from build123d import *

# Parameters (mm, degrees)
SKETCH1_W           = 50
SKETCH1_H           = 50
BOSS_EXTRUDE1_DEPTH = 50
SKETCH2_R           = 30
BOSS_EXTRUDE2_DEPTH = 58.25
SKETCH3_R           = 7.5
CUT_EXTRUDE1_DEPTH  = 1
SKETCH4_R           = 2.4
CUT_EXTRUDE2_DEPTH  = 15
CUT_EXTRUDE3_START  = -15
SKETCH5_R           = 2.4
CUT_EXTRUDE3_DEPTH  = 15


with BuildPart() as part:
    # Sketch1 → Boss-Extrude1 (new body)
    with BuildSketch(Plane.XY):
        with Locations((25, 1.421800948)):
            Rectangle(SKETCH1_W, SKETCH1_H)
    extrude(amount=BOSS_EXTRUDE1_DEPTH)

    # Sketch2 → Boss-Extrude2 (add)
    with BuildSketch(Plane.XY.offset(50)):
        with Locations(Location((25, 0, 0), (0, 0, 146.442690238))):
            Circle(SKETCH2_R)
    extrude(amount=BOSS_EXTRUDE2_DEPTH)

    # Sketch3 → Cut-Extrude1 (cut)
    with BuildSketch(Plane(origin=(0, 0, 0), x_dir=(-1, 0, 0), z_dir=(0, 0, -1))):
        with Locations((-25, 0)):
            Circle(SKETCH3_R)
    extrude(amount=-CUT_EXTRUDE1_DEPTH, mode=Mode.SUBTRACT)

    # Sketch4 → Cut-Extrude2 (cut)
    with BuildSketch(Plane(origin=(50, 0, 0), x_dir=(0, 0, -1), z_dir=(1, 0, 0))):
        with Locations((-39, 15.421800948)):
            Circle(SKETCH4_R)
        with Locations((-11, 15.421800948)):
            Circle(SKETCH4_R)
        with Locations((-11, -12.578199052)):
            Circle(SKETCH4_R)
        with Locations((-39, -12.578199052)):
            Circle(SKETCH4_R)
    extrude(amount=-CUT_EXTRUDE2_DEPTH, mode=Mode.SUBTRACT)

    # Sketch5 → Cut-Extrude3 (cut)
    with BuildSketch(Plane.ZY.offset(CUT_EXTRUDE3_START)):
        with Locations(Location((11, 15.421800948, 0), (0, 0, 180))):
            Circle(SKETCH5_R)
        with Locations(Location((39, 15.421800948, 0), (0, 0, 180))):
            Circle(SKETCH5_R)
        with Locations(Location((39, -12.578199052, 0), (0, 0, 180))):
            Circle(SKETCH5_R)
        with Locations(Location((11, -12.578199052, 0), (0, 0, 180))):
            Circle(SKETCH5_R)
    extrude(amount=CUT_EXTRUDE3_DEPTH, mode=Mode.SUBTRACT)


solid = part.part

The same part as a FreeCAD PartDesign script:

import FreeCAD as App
import Part
import Sketcher
Q = App.Units.Quantity

doc = App.newDocument("Part")
params = doc.addObject("Spreadsheet::Sheet", "Params")
for row, (alias, value) in enumerate([
    ("sketch1_width", "50 mm"),
    ("pad1_length", "50 mm"),
    ("sketch2_diameter", "60 mm"),
    ("pad2_length", "58.25 mm"),
    ("sketch3_diameter", "15 mm"),
    ("pocket1_length", "1 mm"),
    ("sketch4_diameter", "4.8 mm"),
    ("pocket2_length", "15 mm"),
    ("sketch5_diameter", "4.8 mm"),
    ("pocket3_length", "15 mm"),
], start=1):
    params.set(f"A{row}", alias)
    params.set(f"B{row}", "=" + value)
    params.setAlias(f"B{row}", alias)

body = doc.addObject("PartDesign::Body", "Body")

sketch1 = doc.addObject("Sketcher::SketchObject", "Sketch")
body.addObject(sketch1)
sketch1.AttachmentSupport = (doc.XY_Plane, [""])
sketch1.MapMode = "FlatFace"
sketch1.addGeometry([
    Part.LineSegment(App.Vector(0, 26, 0), App.Vector(0, -24, 0)),
    Part.LineSegment(App.Vector(0, -24, 0), App.Vector(50, -24, 0)),
    Part.LineSegment(App.Vector(50, -24, 0), App.Vector(50, 26, 0)),
    Part.LineSegment(App.Vector(50, 26, 0), App.Vector(0, 26, 0)),
], False)
sketch1.addConstraint([
    Sketcher.Constraint("Coincident", 0, 2, 1, 1),
    Sketcher.Constraint("Coincident", 1, 2, 2, 1),
    Sketcher.Constraint("Coincident", 2, 2, 3, 1),
    Sketcher.Constraint("Coincident", 3, 2, 0, 1),
    Sketcher.Constraint("Vertical", 0),
    Sketcher.Constraint("Horizontal", 1),
    Sketcher.Constraint("Vertical", 2),
    Sketcher.Constraint("Horizontal", 3),
    Sketcher.Constraint("PointOnObject", 0, 2, -2),
    Sketcher.Constraint("Equal", 3, 0),
    Sketcher.Constraint("DistanceX", 1, 1, 1, 2, Q("50 mm")),
    Sketcher.Constraint("DistanceY", 0, 2, -1, 1, Q("23.578199 mm")),
])
sketch1.setExpression("Constraints[10]", "Params.sketch1_width")
pad1 = doc.addObject("PartDesign::Pad", "Pad")
body.addObject(pad1)
pad1.Profile = sketch1
pad1.setExpression("Length", "Params.pad1_length")

sketch2 = doc.addObject("Sketcher::SketchObject", "Sketch001")
body.addObject(sketch2)
sketch2.AttachmentSupport = (doc.XY_Plane, [""])
sketch2.MapMode = "FlatFace"
sketch2.AttachmentOffset = App.Placement(App.Vector(0, 0, 50), App.Rotation())
sketch2.addGeometry(Part.Circle(App.Vector(25, 0, 0), App.Vector(0, 0, 1), 30), False)
sketch2.addConstraint([
    Sketcher.Constraint("PointOnObject", 0, 3, -1),
    Sketcher.Constraint("Diameter", 0, Q("60 mm")),
    Sketcher.Constraint("DistanceX", -1, 1, 0, 3, Q("25 mm")),
])
sketch2.setExpression("Constraints[1]", "Params.sketch2_diameter")
pad2 = doc.addObject("PartDesign::Pad", "Pad001")
body.addObject(pad2)
pad2.Profile = sketch2
pad2.setExpression("Length", "Params.pad2_length")

sketch3 = doc.addObject("Sketcher::SketchObject", "Sketch002")
body.addObject(sketch3)
sketch3.AttachmentSupport = (doc.XY_Plane, [""])
sketch3.MapMode = "FlatFace"
sketch3.addGeometry(Part.Circle(App.Vector(25, 0, 0), App.Vector(0, 0, 1), 8), False)
sketch3.addConstraint([
    Sketcher.Constraint("PointOnObject", 0, 3, -1),
    Sketcher.Constraint("Diameter", 0, Q("15 mm")),
    Sketcher.Constraint("DistanceX", -1, 1, 0, 3, Q("25 mm")),
])
sketch3.setExpression("Constraints[1]", "Params.sketch3_diameter")
pocket1 = doc.addObject("PartDesign::Pocket", "Pocket")
body.addObject(pocket1)
pocket1.Profile = sketch3
pocket1.setExpression("Length", "Params.pocket1_length")
pocket1.Reversed = True

sketch4 = doc.addObject("Sketcher::SketchObject", "Sketch003")
body.addObject(sketch4)
sketch4.AttachmentSupport = (doc.YZ_Plane, [""])
sketch4.MapMode = "FlatFace"
sketch4.AttachmentOffset = App.Placement(App.Vector(0, 0, 50), App.Rotation())
sketch4.addGeometry([
    Part.Circle(App.Vector(15.4, 39, 0), App.Vector(0, 0, 1), 2.4),
    Part.Circle(App.Vector(15.4, 11, 0), App.Vector(0, 0, 1), 2.4),
    Part.Circle(App.Vector(-12.6, 11, 0), App.Vector(0, 0, 1), 2.4),
    Part.Circle(App.Vector(-12.6, 39, 0), App.Vector(0, 0, 1), 2.4),
], False)
sketch4.addConstraint([
    Sketcher.Constraint("Equal", 0, 1),
    Sketcher.Constraint("Equal", 1, 2),
    Sketcher.Constraint("Equal", 2, 3),
    Sketcher.Constraint("Horizontal", 1, 3, 2, 3),
    Sketcher.Constraint("Horizontal", 0, 3, 3, 3),
    Sketcher.Constraint("Vertical", 0, 3, 1, 3),
    Sketcher.Constraint("Vertical", 2, 3, 3, 3),
    Sketcher.Constraint("Diameter", 0, Q("4.8 mm")),
    Sketcher.Constraint("DistanceY", -1, 1, 0, 3, Q("39 mm")),
    Sketcher.Constraint("DistanceY", -1, 1, 1, 3, Q("11 mm")),
    Sketcher.Constraint("DistanceX", 2, 3, 1, 3, Q("28 mm")),
    Sketcher.Constraint("DistanceX", -1, 1, 0, 3, Q("15.421801 mm")),
])
sketch4.setExpression("Constraints[7]", "Params.sketch4_diameter")
pocket2 = doc.addObject("PartDesign::Pocket", "Pocket001")
body.addObject(pocket2)
pocket2.Profile = sketch4
pocket2.setExpression("Length", "Params.pocket2_length")

sketch5 = doc.addObject("Sketcher::SketchObject", "Sketch004")
body.addObject(sketch5)
sketch5.AttachmentSupport = (doc.YZ_Plane, [""])
sketch5.MapMode = "FlatFace"
sketch5.AttachmentOffset = App.Placement(App.Vector(0, 0, 15), App.Rotation())
sketch5.addGeometry([
    Part.Circle(App.Vector(15.4, 11, 0), App.Vector(0, 0, 1), 2.4),
    Part.Circle(App.Vector(15.4, 39, 0), App.Vector(0, 0, 1), 2.4),
    Part.Circle(App.Vector(-12.6, 39, 0), App.Vector(0, 0, 1), 2.4),
    Part.Circle(App.Vector(-12.6, 11, 0), App.Vector(0, 0, 1), 2.4),
], False)
sketch5.addConstraint([
    Sketcher.Constraint("Equal", 0, 1),
    Sketcher.Constraint("Equal", 1, 2),
    Sketcher.Constraint("Equal", 2, 3),
    Sketcher.Constraint("Horizontal", 1, 3, 2, 3),
    Sketcher.Constraint("Horizontal", 0, 3, 3, 3),
    Sketcher.Constraint("Vertical", 0, 3, 1, 3),
    Sketcher.Constraint("Vertical", 2, 3, 3, 3),
    Sketcher.Constraint("Diameter", 0, Q("4.8 mm")),
    Sketcher.Constraint("DistanceY", -1, 1, 0, 3, Q("11 mm")),
    Sketcher.Constraint("DistanceY", -1, 1, 1, 3, Q("39 mm")),
    Sketcher.Constraint("DistanceX", 2, 3, 1, 3, Q("28 mm")),
    Sketcher.Constraint("DistanceX", -1, 1, 0, 3, Q("15.421801 mm")),
])
sketch5.setExpression("Constraints[7]", "Params.sketch5_diameter")
pocket3 = doc.addObject("PartDesign::Pocket", "Pocket002")
body.addObject(pocket3)
pocket3.Profile = sketch5
pocket3.setExpression("Length", "Params.pocket3_length")

doc.recompute()
